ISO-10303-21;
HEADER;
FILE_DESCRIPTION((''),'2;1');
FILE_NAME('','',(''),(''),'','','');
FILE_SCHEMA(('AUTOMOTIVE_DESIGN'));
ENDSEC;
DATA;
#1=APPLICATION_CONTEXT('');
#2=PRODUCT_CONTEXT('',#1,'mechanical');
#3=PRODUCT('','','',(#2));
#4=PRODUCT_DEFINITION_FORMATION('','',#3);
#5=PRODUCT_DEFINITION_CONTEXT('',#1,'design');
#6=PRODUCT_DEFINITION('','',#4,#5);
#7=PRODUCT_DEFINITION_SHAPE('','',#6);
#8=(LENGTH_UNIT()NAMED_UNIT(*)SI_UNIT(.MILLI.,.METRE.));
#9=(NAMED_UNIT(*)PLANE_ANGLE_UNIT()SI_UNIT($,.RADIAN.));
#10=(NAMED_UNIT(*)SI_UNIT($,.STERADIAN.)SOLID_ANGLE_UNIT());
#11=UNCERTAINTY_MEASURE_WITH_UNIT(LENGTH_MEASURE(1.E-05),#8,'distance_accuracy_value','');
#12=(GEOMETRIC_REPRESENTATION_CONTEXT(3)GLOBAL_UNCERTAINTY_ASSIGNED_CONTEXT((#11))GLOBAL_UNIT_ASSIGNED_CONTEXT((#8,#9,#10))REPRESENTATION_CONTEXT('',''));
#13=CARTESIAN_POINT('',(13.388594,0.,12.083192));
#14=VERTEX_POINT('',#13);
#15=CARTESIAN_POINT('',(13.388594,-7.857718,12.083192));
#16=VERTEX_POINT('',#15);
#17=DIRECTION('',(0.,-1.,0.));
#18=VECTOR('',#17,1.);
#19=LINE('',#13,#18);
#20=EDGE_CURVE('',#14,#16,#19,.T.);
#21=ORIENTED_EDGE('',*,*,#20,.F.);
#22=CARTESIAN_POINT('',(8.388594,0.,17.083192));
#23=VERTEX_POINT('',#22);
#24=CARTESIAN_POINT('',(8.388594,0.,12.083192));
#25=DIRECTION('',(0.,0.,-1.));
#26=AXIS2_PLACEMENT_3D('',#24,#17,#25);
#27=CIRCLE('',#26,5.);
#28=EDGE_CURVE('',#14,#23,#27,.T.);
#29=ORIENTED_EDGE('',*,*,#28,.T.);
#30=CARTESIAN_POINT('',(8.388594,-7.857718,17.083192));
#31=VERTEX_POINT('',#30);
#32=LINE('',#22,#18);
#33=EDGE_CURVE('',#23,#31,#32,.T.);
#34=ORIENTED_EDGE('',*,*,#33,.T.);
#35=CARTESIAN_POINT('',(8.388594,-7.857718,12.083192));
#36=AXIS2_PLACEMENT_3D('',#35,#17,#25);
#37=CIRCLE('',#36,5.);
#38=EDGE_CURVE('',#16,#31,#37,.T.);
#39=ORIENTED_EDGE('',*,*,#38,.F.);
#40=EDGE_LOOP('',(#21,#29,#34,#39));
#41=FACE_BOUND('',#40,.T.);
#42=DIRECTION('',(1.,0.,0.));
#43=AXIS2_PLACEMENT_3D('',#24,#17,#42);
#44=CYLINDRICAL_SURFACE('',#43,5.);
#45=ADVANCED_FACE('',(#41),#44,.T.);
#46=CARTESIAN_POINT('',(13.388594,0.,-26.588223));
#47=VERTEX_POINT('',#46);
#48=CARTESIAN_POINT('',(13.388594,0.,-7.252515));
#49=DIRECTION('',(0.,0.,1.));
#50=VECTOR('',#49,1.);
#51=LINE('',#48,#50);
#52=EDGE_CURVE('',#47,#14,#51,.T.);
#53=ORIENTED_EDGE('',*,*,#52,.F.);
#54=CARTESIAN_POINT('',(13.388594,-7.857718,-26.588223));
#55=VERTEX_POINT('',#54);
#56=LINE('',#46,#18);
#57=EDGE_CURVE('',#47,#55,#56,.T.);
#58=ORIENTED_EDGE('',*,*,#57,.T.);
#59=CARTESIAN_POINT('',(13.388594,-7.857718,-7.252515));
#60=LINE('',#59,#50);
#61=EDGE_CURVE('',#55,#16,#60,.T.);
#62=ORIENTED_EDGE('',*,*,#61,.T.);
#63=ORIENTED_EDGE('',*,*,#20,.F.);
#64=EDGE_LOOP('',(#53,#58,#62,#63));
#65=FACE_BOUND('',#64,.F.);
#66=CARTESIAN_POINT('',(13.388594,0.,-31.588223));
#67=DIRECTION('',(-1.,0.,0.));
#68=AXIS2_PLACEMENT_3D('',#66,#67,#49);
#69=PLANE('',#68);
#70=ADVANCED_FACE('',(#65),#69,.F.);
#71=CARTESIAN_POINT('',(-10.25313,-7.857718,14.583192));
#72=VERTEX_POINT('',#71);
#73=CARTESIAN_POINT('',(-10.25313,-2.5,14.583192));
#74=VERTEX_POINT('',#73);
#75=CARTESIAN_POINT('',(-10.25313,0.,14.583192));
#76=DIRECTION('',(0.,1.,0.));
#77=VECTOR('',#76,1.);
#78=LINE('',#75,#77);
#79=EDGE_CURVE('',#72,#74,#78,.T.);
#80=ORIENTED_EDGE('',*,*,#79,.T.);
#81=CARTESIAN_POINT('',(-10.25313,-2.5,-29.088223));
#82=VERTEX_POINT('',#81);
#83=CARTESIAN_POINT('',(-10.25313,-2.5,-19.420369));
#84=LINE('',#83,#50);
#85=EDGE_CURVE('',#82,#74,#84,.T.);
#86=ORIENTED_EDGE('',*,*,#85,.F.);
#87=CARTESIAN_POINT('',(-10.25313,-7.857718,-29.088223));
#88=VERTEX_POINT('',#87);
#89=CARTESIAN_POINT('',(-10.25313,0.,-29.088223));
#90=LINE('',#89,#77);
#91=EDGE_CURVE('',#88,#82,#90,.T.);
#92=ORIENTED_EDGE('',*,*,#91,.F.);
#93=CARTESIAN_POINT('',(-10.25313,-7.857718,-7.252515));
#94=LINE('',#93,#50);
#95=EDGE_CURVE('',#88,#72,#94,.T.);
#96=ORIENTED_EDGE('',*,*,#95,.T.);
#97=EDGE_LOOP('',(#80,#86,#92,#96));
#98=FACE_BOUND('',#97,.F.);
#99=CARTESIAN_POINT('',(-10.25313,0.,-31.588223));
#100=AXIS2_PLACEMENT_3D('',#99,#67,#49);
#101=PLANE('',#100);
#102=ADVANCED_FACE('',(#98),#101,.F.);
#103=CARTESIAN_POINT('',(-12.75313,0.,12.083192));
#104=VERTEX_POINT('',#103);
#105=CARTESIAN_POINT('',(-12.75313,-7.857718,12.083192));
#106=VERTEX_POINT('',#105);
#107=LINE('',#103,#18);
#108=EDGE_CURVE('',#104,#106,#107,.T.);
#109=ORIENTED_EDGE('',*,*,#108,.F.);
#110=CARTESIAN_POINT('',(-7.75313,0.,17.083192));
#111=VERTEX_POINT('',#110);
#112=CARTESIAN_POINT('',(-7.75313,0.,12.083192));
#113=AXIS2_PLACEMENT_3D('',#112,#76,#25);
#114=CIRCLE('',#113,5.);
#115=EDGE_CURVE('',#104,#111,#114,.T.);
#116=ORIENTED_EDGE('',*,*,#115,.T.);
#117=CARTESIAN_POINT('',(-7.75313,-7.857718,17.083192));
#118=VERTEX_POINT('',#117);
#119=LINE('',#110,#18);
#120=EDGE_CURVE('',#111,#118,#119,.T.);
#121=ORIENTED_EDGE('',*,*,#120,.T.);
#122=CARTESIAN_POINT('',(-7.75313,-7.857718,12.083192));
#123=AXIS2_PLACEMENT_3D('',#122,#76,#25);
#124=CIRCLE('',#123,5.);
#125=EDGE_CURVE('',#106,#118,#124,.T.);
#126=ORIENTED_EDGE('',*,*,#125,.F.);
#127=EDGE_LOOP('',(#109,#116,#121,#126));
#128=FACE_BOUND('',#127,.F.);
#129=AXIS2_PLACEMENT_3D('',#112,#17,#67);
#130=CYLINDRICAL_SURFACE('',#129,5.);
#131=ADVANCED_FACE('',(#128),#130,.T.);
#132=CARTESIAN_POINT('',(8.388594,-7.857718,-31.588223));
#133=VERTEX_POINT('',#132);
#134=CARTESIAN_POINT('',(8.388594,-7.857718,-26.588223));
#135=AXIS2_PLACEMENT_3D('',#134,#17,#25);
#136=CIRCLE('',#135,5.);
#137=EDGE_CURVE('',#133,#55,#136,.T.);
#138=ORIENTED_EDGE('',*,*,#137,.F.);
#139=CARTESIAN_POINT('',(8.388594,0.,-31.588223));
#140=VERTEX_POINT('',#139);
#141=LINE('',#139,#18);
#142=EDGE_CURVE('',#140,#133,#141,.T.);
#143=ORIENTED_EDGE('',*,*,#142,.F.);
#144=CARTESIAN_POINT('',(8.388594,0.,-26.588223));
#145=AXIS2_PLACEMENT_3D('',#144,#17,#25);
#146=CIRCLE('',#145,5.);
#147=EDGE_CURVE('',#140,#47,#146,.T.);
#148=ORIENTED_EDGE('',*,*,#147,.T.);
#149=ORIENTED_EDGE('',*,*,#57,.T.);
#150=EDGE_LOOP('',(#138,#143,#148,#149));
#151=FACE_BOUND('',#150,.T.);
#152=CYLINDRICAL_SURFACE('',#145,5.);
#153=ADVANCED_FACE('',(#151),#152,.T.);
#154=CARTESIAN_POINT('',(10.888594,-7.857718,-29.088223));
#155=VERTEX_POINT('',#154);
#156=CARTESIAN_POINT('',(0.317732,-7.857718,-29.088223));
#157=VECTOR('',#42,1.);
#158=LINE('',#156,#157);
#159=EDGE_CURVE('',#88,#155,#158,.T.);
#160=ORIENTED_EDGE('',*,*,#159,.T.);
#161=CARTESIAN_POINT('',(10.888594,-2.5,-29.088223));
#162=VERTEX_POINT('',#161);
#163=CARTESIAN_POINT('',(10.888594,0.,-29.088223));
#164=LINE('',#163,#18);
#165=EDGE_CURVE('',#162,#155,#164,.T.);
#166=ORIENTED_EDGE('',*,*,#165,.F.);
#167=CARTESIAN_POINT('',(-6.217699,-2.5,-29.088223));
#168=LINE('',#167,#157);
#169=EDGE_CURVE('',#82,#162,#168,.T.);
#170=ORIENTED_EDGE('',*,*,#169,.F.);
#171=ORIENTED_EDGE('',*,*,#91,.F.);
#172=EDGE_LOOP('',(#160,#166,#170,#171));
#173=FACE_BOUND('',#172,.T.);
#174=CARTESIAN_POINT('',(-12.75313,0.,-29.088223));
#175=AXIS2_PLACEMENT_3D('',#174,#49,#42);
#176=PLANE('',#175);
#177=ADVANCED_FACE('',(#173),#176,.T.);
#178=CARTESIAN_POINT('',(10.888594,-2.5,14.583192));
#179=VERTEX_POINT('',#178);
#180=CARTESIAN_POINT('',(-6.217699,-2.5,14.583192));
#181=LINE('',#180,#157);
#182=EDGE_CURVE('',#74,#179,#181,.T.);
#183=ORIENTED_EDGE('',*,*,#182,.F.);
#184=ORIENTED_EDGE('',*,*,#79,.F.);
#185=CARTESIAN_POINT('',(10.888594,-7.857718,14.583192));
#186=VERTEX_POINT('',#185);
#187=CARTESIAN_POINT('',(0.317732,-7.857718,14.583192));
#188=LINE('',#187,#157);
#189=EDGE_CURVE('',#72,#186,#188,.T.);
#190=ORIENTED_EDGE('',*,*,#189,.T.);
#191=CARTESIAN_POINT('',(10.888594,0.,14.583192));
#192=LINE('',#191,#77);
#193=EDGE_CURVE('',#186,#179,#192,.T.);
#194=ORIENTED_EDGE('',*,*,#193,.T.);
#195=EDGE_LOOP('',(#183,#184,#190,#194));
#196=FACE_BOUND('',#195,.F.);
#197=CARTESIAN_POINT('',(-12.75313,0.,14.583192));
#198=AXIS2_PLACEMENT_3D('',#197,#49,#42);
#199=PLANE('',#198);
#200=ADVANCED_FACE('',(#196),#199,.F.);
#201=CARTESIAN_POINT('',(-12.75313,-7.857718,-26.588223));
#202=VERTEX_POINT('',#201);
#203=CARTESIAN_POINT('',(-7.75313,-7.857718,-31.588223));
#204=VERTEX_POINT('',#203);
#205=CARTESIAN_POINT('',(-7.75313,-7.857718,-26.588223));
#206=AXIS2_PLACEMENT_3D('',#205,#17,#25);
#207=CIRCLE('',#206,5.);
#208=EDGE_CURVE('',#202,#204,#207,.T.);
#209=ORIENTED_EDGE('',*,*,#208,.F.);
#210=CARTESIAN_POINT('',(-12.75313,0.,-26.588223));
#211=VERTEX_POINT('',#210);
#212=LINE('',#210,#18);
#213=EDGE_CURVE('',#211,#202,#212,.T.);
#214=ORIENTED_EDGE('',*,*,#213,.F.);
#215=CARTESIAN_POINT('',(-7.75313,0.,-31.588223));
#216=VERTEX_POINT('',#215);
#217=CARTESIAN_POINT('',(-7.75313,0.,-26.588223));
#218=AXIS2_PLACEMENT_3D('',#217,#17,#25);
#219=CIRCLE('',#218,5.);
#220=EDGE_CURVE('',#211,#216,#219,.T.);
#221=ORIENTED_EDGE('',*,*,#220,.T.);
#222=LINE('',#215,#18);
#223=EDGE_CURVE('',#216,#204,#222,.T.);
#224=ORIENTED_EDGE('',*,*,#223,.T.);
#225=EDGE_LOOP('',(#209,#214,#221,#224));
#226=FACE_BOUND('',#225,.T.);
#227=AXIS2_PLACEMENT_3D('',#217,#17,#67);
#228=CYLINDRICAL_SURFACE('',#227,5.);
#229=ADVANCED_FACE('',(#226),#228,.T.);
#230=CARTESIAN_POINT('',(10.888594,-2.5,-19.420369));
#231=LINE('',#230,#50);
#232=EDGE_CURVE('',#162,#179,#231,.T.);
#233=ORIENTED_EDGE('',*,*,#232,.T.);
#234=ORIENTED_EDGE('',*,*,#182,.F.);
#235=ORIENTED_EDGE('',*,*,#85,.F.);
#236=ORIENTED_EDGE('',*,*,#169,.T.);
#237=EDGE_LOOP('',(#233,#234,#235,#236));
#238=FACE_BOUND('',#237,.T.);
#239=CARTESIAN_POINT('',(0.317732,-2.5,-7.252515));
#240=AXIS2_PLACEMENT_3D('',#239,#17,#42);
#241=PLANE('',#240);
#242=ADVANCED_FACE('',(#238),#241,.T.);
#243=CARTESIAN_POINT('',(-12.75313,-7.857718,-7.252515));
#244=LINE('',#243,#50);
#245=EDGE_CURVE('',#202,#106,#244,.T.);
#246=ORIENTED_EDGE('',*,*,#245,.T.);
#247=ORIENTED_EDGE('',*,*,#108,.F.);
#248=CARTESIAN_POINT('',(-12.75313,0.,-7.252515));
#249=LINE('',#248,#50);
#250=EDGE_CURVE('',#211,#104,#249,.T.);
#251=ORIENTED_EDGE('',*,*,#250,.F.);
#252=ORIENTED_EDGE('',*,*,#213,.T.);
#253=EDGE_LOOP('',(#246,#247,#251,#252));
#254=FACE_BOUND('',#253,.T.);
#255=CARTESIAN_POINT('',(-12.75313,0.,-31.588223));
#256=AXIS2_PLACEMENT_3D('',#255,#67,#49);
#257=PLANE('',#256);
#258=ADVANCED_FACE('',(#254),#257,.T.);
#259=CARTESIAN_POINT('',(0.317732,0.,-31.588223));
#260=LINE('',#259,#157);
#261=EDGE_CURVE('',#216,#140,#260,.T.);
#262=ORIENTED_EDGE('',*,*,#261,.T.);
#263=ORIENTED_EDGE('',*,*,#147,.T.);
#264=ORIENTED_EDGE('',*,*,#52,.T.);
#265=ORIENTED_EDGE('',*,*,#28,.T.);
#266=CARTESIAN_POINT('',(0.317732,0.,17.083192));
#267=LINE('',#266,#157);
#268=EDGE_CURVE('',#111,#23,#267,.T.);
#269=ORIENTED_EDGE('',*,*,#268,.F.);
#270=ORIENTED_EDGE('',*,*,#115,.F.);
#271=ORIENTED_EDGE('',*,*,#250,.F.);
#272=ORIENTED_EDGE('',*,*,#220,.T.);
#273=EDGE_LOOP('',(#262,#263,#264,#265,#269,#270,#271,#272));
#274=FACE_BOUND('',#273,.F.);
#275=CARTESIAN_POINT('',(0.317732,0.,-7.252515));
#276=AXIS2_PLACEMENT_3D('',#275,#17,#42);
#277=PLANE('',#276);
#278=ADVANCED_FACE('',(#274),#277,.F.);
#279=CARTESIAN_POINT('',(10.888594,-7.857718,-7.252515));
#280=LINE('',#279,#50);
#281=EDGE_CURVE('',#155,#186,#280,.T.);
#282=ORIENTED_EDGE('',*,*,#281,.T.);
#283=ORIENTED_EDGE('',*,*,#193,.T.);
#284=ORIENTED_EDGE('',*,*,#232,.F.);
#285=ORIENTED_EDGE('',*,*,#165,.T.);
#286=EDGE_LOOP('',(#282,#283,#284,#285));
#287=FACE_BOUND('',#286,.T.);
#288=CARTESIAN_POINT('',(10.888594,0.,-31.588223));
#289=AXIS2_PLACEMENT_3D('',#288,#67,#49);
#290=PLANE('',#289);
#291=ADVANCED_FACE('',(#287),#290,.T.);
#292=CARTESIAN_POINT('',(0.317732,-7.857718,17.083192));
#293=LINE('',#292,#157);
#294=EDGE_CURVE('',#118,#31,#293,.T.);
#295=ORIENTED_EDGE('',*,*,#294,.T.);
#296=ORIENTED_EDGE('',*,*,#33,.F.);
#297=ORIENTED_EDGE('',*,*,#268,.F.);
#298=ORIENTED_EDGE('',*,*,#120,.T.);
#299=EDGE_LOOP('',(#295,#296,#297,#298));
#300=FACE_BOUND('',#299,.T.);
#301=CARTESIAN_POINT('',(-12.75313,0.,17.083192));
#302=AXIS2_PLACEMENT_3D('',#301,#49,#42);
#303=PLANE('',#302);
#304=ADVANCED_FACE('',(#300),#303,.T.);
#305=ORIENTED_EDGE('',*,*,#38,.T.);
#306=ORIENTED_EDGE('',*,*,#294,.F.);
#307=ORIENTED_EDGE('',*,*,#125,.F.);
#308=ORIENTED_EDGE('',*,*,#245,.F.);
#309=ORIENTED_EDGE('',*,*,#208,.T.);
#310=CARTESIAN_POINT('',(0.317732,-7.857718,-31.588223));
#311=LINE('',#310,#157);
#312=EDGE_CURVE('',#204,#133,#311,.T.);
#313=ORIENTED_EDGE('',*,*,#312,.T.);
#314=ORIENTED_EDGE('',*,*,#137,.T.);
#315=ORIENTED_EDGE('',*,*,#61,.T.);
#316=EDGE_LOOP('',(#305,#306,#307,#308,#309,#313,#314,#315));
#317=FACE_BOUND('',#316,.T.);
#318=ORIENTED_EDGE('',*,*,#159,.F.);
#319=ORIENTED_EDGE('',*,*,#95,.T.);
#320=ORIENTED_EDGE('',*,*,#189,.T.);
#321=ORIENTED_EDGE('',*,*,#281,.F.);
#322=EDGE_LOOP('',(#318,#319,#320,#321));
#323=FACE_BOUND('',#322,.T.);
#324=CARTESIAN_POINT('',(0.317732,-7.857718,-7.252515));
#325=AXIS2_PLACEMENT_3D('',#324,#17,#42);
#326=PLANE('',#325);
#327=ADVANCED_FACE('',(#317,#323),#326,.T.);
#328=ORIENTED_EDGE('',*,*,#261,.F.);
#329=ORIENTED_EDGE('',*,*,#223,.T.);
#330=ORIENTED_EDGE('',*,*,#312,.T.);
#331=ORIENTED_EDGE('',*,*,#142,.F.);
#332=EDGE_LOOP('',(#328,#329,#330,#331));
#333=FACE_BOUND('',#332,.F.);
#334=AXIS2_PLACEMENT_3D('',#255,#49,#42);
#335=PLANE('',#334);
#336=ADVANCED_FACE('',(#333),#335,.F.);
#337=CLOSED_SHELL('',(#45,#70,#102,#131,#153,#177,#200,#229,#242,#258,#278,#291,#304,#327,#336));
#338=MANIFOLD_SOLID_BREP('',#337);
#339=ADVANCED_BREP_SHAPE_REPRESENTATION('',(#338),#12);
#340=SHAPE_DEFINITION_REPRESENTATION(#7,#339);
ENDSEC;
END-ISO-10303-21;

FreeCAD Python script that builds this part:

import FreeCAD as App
import Part
import Sketcher
from FreeCAD import Vector


def edges_at(feature, points):
    """Names of the edges that pass closest to the given points."""
    edges = feature.Shape.Edges
    near = lambda p: min(range(len(edges)), key=lambda i: edges[i].distToShape(Part.Vertex(*p))[0])
    return sorted({f"Edge{near(p) + 1}" for p in points})


def faces_at(feature, points):
    """Names of the faces that lie closest to the given points."""
    faces = feature.Shape.Faces
    near = lambda p: min(range(len(faces)), key=lambda i: faces[i].distToShape(Part.Vertex(*p))[0])
    return sorted({f"Face{near(p) + 1}" for p in points})


def add_polygon(sketch, points):
    """Adds a closed chain of lines whose ends are joined by coincident constraints."""
    first, n = sketch.GeometryCount, len(points)
    for a, b in zip(points, points[1:] + points[:1]):
        sketch.addGeometry(Part.LineSegment(App.Vector(*a, 0), App.Vector(*b, 0)), False)
    for i in range(n):
        sketch.addConstraint(Sketcher.Constraint("Coincident", first + i, 2, first + (i + 1) % n, 1))

doc = App.newDocument("Part")
params = doc.addObject("Spreadsheet::Sheet", "Params")
for row, (alias, value) in enumerate([
    ("pad1_length", "7.857718 mm"),
    ("thickness_wall", "2.5 mm"),
    ("fillet_radius", "5 mm"),
], start=1):
    params.set(f"A{row}", alias)
    params.set(f"B{row}", "=" + value)
    params.setAlias(f"B{row}", alias)

body = doc.addObject("PartDesign::Body", "Body")

sketch1 = body.newObject("Sketcher::SketchObject", "Sketch")
sketch1.AttachmentSupport = (doc.getObject("XZ_Plane"), [""])
sketch1.MapMode = "FlatFace"
add_polygon(sketch1, [(-13, 17), (-13, -32), (13, -32), (13, 17)])
sketch1.addConstraint([
    Sketcher.Constraint("Vertical", 0),
    Sketcher.Constraint("Horizontal", 1),
    Sketcher.Constraint("Vertical", 2),
    Sketcher.Constraint("Horizontal", 3),
    Sketcher.Constraint("DistanceX", 1, 1, 1, 2, 26.141723),
    Sketcher.Constraint("DistanceY", 0, 2, 0, 1, 48.671415),
    Sketcher.Constraint("DistanceX", 0, 2, -1, 1, 12.75313),
    Sketcher.Constraint("DistanceY", 0, 2, -1, 1, 31.588223),
])
pad1 = body.newObject("PartDesign::Pad", "Pad")
pad1.Profile = sketch1
pad1.setExpression("Length", "Params.pad1_length")
doc.recompute()

thickness = body.newObject("PartDesign::Thickness", "Thickness")
thickness.Base = (pad1, faces_at(pad1, [(0.318, -7.858, -7.253)]))
thickness.setExpression("Value", "Params.thickness_wall")
thickness.Reversed = True
thickness.Join = "Arc"
doc.recompute()

fillet = body.newObject("PartDesign::Fillet", "Fillet")
fillet.Base = (thickness, edges_at(thickness, [
    (13.389, -3.929, 17.083),
    (-12.753, -3.929, 17.083),
    (-12.753, -3.929, -31.588),
    (13.389, -3.929, -31.588),
]))
fillet.setExpression("Radius", "Params.fillet_radius")

doc.recompute()
